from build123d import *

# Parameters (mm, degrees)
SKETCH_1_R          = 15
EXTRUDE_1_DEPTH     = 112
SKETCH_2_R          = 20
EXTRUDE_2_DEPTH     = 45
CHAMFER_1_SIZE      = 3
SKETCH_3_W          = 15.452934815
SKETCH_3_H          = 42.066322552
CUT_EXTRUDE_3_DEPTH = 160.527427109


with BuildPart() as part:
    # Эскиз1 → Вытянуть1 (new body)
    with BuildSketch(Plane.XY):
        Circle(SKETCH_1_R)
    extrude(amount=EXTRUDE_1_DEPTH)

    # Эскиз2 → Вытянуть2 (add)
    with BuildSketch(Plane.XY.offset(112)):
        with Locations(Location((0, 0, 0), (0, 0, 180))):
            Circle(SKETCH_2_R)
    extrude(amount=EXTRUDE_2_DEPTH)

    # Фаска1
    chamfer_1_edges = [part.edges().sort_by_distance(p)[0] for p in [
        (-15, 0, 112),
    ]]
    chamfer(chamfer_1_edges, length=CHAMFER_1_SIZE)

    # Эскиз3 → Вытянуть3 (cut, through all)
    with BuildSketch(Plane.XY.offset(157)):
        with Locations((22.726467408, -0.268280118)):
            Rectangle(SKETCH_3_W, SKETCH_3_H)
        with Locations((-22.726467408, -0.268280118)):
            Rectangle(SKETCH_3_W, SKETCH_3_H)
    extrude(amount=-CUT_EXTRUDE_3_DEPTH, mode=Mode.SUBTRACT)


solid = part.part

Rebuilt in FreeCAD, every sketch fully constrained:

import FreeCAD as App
import Part
import Sketcher
from FreeCAD import Vector


def edges_at(feature, points):
    """Names of the edges that pass closest to the given points."""
    edges = feature.Shape.Edges
    near = lambda p: min(range(len(edges)), key=lambda i: edges[i].distToShape(Part.Vertex(*p))[0])
    return sorted({f"Edge{near(p) + 1}" for p in points})

doc = App.newDocument("Part")
body = doc.addObject("PartDesign::Body", "Body")

# Sketch on XY plane
sketch1 = body.newObject("Sketcher::SketchObject", "Sketch")
sketch1.AttachmentSupport = (doc.getObject("XY_Plane"), [""])
sketch1.MapMode = "FlatFace"
sketch1.addGeometry(Part.Circle(Vector(0, 0, 0), Vector(0, 0, 1), 15), False)
sketch1.addConstraint(Sketcher.Constraint("Coincident", 0, 3, -1, 1))
sketch1.addConstraint(Sketcher.Constraint("Diameter", 0, 30.0))
pad1 = body.newObject("PartDesign::Pad", "Pad")
pad1.Profile = sketch1
pad1.Length = 112

# Sketch on XY plane
sketch2 = body.newObject("Sketcher::SketchObject", "Sketch001")
sketch2.AttachmentSupport = (doc.getObject("XY_Plane"), [""])
sketch2.MapMode = "FlatFace"
sketch2.AttachmentOffset = App.Placement(Vector(0, 0, 112), App.Rotation())
sketch2.addGeometry(Part.Circle(Vector(0, 0, 0), Vector(0, 0, 1), 20), False)
sketch2.addConstraint(Sketcher.Constraint("Coincident", 0, 3, -1, 1))
sketch2.addConstraint(Sketcher.Constraint("Diameter", 0, 40.0))
pad2 = body.newObject("PartDesign::Pad", "Pad001")
pad2.Profile = sketch2
pad2.Length = 45
doc.recompute()

chamfer = body.newObject("PartDesign::Chamfer", "Chamfer")
chamfer.Base = (pad2, edges_at(pad2, [(-15, 0, 112)]))
chamfer.Size = 3

# Sketch on XY plane
sketch3 = body.newObject("Sketcher::SketchObject", "Sketch002")
sketch3.AttachmentSupport = (doc.getObject("XY_Plane"), [""])
sketch3.MapMode = "FlatFace"
sketch3.AttachmentOffset = App.Placement(Vector(0, 0, 157), App.Rotation())
sketch3.addGeometry(Part.LineSegment(Vector(15, 21, 0), Vector(15, -21, 0)), False)
sketch3.addGeometry(Part.LineSegment(Vector(15, -21, 0), Vector(30, -21, 0)), False)
sketch3.addGeometry(Part.LineSegment(Vector(30, -21, 0), Vector(30, 21, 0)), False)
sketch3.addGeometry(Part.LineSegment(Vector(30, 21, 0), Vector(15, 21, 0)), False)
sketch3.addGeometry(Part.LineSegment(Vector(-30, 21, 0), Vector(-30, -21, 0)), False)
sketch3.addGeometry(Part.LineSegment(Vector(-30, -21, 0), Vector(-15, -21, 0)), False)
sketch3.addGeometry(Part.LineSegment(Vector(-15, -21, 0), Vector(-15, 21, 0)), False)
sketch3.addGeometry(Part.LineSegment(Vector(-15, 21, 0), Vector(-30, 21, 0)), False)
sketch3.addConstraint(Sketcher.Constraint("Coincident", 0, 2, 1, 1))
sketch3.addConstraint(Sketcher.Constraint("Coincident", 1, 2, 2, 1))
sketch3.addConstraint(Sketcher.Constraint("Coincident", 2, 2, 3, 1))
sketch3.addConstraint(Sketcher.Constraint("Coincident", 3, 2, 0, 1))
sketch3.addConstraint(Sketcher.Constraint("Coincident", 4, 2, 5, 1))
sketch3.addConstraint(Sketcher.Constraint("Coincident", 5, 2, 6, 1))
sketch3.addConstraint(Sketcher.Constraint("Coincident", 6, 2, 7, 1))
sketch3.addConstraint(Sketcher.Constraint("Coincident", 7, 2, 4, 1))
sketch3.addConstraint(Sketcher.Constraint("Vertical", 0))
sketch3.addConstraint(Sketcher.Constraint("Horizontal", 1))
sketch3.addConstraint(Sketcher.Constraint("Vertical", 2))
sketch3.addConstraint(Sketcher.Constraint("Horizontal", 3))
sketch3.addConstraint(Sketcher.Constraint("Vertical", 4))
sketch3.addConstraint(Sketcher.Constraint("Horizontal", 5))
sketch3.addConstraint(Sketcher.Constraint("Vertical", 6))
sketch3.addConstraint(Sketcher.Constraint("Horizontal", 7))
sketch3.addConstraint(Sketcher.Constraint("Symmetric", 1, 2, 4, 2, -2))
sketch3.addConstraint(Sketcher.Constraint("Symmetric", 3, 2, 6, 2, -2))
sketch3.addConstraint(Sketcher.Constraint("DistanceX", -1, 1, 0, 2, 15.0))
sketch3.addConstraint(Sketcher.Constraint("DistanceX", 1, 1, 1, 2, 15.452935))
sketch3.addConstraint(Sketcher.Constraint("DistanceY", 0, 2, 0, 1, 42.066323))
sketch3.addConstraint(Sketcher.Constraint("DistanceY", 0, 2, -1, 1, 21.301441))
pocket1 = body.newObject("PartDesign::Pocket", "Pocket")
pocket1.Profile = sketch3
pocket1.Type = "ThroughAll"

doc.recompute()
